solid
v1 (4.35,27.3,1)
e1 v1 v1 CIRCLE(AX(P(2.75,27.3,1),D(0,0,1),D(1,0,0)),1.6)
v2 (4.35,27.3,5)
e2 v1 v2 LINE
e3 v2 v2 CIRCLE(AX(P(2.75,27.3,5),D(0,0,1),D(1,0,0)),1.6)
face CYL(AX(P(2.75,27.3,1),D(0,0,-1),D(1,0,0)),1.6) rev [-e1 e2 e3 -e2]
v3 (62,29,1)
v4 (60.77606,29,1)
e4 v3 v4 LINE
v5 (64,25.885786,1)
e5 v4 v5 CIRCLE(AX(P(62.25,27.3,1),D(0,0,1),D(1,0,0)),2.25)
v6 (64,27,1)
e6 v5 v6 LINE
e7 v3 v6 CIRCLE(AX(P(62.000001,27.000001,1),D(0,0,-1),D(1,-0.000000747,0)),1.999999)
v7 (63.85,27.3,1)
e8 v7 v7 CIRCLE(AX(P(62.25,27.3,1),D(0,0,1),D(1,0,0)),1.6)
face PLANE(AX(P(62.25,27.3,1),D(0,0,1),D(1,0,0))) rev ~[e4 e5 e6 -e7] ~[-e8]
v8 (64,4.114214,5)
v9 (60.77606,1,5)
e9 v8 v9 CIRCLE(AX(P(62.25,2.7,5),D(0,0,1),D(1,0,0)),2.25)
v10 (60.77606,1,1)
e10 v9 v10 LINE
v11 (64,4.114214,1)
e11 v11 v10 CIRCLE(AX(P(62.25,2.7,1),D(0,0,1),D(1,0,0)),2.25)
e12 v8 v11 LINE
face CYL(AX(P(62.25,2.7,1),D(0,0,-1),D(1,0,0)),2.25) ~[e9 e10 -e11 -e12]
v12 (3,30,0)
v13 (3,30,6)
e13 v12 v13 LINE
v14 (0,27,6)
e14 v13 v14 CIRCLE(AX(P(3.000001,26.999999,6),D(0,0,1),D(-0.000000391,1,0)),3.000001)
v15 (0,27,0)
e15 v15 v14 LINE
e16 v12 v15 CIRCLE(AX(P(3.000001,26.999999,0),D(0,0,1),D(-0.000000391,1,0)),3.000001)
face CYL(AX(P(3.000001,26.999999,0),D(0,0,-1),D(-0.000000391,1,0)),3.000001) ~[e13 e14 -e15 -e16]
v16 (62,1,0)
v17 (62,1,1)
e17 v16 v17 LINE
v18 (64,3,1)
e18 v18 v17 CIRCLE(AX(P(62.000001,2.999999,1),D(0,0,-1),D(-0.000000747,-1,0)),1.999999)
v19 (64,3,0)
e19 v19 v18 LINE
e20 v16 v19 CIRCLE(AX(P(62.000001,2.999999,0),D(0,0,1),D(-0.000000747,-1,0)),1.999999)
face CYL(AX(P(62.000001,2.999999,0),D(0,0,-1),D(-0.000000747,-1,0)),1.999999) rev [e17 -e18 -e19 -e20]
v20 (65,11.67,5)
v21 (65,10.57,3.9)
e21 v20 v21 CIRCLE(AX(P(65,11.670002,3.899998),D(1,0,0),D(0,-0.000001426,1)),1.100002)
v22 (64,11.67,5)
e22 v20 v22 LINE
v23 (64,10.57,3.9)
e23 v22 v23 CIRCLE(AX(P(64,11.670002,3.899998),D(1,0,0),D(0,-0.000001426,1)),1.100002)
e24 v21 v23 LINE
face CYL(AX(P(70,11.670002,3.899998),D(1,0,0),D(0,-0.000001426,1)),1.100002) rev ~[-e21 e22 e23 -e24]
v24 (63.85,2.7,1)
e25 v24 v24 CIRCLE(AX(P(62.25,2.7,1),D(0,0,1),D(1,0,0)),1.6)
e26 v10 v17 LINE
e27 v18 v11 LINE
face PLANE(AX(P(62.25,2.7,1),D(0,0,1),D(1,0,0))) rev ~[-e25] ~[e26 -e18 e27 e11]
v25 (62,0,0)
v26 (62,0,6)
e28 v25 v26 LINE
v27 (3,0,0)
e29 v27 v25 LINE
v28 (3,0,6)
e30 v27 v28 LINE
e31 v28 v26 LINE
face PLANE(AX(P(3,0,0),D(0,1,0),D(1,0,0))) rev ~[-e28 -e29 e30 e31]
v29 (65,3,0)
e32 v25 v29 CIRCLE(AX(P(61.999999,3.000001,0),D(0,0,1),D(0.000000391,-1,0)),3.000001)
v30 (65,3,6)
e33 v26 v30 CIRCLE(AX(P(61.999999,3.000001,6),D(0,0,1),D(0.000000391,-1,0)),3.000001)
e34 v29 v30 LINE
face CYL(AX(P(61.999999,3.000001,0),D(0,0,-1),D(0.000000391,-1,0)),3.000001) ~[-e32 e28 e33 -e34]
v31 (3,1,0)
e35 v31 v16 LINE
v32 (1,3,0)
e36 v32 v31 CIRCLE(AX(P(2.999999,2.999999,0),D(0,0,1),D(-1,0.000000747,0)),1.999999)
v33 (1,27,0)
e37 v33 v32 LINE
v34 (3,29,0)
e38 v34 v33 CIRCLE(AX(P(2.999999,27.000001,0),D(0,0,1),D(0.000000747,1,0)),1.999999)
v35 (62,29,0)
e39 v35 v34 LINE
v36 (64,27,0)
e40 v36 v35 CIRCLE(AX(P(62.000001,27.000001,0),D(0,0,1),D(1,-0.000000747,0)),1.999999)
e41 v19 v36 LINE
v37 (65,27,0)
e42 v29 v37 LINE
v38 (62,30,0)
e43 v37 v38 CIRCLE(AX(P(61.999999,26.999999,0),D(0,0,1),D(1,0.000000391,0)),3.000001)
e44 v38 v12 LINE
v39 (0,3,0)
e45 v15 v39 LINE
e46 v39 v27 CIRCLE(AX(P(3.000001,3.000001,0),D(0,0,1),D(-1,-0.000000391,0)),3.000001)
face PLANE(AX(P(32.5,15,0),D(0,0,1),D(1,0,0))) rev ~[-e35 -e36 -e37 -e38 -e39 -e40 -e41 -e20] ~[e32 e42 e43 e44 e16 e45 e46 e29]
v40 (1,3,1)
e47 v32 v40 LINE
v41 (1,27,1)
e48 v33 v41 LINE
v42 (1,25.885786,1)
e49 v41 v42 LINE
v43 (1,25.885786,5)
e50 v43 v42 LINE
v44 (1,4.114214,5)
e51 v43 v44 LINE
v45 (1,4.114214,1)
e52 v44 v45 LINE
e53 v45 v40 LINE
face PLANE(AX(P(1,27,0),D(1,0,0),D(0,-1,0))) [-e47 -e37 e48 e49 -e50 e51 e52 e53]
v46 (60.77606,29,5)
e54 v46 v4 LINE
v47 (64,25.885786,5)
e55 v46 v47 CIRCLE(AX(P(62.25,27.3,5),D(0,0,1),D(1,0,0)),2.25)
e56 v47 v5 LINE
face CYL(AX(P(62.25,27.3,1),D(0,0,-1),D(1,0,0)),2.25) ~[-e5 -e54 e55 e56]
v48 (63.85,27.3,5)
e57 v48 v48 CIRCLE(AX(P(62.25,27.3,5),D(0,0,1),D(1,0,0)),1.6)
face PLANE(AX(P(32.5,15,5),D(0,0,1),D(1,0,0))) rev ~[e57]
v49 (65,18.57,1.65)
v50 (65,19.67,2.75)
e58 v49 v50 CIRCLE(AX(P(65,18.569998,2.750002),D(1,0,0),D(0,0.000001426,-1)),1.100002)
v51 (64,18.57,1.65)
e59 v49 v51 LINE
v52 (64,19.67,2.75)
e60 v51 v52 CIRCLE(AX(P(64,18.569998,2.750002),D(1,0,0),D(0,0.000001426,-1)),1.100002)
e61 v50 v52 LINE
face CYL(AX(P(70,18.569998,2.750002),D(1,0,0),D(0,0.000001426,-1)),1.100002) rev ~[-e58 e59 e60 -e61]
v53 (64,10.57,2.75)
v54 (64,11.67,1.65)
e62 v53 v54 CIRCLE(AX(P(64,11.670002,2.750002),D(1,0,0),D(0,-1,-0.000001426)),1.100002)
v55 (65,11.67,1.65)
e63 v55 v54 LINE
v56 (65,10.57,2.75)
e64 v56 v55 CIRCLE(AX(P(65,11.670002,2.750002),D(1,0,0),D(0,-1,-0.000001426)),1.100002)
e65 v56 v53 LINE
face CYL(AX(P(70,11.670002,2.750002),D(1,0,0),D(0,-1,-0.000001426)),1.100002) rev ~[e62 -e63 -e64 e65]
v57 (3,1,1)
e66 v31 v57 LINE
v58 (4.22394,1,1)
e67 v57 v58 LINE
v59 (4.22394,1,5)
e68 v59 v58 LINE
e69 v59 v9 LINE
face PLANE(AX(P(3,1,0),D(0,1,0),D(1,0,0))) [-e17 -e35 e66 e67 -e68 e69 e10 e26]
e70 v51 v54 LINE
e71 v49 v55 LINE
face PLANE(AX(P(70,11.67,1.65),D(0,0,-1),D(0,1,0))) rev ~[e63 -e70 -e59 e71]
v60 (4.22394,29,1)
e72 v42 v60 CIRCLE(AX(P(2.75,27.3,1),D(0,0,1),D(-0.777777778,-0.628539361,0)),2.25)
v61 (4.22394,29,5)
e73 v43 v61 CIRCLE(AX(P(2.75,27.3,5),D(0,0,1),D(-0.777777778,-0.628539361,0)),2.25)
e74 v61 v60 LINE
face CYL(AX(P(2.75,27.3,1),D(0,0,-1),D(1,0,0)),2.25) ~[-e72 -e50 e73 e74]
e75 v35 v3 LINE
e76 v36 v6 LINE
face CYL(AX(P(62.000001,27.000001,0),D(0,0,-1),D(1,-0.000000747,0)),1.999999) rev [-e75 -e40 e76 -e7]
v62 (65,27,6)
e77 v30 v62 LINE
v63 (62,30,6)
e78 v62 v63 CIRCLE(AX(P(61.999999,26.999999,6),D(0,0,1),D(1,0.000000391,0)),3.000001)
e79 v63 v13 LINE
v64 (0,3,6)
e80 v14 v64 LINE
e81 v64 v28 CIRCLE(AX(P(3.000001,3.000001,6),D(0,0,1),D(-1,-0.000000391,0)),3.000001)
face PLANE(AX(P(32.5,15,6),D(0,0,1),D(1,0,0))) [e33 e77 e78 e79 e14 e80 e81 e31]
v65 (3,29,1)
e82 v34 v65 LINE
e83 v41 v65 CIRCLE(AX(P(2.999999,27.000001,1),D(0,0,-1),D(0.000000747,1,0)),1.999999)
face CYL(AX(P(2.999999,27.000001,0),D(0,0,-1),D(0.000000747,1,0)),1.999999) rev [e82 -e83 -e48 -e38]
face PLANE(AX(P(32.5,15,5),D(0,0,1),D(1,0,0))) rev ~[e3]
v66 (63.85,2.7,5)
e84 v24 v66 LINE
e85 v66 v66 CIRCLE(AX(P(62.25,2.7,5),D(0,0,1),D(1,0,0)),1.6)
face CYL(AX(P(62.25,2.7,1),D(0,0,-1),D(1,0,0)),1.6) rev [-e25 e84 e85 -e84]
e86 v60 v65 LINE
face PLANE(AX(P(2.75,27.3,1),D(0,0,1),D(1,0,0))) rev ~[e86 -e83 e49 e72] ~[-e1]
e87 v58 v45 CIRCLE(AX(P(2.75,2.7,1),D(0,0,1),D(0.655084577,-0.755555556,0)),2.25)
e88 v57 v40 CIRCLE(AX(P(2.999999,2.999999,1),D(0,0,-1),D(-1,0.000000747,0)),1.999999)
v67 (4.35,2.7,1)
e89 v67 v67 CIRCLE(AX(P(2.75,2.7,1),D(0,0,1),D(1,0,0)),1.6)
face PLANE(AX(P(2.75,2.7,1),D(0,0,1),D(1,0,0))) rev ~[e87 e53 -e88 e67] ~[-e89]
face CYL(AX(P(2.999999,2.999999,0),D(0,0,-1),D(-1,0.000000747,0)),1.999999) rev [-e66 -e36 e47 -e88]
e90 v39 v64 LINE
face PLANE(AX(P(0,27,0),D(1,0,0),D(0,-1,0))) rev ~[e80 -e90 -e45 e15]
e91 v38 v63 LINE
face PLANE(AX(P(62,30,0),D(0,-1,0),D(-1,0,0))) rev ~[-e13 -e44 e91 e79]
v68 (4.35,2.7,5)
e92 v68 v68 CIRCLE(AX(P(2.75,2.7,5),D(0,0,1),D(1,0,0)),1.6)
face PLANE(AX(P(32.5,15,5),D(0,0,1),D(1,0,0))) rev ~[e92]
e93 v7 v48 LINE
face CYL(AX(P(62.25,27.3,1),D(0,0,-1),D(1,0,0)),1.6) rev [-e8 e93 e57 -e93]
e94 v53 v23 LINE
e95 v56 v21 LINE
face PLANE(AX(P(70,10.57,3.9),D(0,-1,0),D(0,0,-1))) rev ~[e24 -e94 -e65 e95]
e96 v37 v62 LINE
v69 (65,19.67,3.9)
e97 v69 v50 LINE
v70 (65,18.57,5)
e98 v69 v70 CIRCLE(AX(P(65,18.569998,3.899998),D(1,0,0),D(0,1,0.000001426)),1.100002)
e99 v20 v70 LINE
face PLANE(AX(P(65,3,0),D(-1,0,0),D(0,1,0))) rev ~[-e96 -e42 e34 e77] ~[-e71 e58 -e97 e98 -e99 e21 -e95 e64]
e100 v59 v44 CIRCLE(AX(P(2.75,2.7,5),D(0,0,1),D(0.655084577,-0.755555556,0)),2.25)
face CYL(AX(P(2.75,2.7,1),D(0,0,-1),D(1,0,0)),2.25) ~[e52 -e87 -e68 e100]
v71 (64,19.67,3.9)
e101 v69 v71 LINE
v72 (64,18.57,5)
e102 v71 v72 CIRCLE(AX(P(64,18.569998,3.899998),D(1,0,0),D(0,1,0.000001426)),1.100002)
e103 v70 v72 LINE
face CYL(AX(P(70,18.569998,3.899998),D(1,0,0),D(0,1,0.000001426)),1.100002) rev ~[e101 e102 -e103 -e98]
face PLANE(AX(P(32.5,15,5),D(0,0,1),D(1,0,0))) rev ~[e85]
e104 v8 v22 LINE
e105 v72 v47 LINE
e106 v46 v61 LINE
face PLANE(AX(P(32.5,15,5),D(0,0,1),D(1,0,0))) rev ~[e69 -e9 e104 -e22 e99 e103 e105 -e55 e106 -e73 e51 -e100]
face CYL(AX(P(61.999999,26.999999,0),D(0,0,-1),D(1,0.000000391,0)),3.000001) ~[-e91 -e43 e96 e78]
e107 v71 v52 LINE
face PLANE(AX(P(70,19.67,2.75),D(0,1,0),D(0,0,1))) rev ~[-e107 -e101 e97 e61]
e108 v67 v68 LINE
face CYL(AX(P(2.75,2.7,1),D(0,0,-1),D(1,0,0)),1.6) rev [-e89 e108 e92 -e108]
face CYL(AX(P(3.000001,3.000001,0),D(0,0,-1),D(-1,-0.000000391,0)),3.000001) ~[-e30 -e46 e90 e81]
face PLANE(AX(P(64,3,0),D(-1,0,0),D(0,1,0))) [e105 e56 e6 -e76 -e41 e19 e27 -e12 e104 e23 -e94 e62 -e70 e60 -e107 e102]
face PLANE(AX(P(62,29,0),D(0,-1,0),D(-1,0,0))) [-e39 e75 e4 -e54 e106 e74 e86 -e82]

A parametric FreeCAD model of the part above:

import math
import FreeCAD as App
import Part
import Sketcher
from FreeCAD import Vector

doc = App.newDocument("Part")
body = doc.addObject("PartDesign::Body", "Body")

# Sketch on XY plane
sketch1 = doc.addObject("Sketcher::SketchObject", "Sketch")
body.addObject(sketch1)
sketch1.AttachmentSupport = (doc.XY_Plane, [""])
sketch1.MapMode = "FlatFace"
sketch1.addGeometry([
    Part.LineSegment(Vector(3, 0, 0), Vector(62, 0, 0)),  # 0
    Part.ArcOfCircle(Part.Circle(Vector(62, 3, 0), Vector(0, 0, 1), 3), math.radians(-90), math.radians(0)),  # 1
    Part.LineSegment(Vector(65, 3, 0), Vector(65, 27, 0)),  # 2
    Part.ArcOfCircle(Part.Circle(Vector(62, 27, 0), Vector(0, 0, 1), 3), math.radians(0), math.radians(90)),  # 3
    Part.LineSegment(Vector(62, 30, 0), Vector(3, 30, 0)),  # 4
    Part.ArcOfCircle(Part.Circle(Vector(3, 27, 0), Vector(0, 0, 1), 3), math.radians(90), math.radians(180)),  # 5
    Part.LineSegment(Vector(0, 27, 0), Vector(0, 3, 0)),  # 6
    Part.ArcOfCircle(Part.Circle(Vector(3, 3, 0), Vector(0, 0, 1), 3), math.radians(-180), math.radians(-90)),  # 7
], False)
sketch1.addConstraint([
    Sketcher.Constraint("Tangent", 0, 2, 1, 1),
    Sketcher.Constraint("Tangent", 1, 2, 2, 1),
    Sketcher.Constraint("Tangent", 2, 2, 3, 1),
    Sketcher.Constraint("Tangent", 3, 2, 4, 1),
    Sketcher.Constraint("Tangent", 4, 2, 5, 1),
    Sketcher.Constraint("Tangent", 5, 2, 6, 1),
    Sketcher.Constraint("Tangent", 6, 2, 7, 1),
    Sketcher.Constraint("Tangent", 7, 2, 0, 1),
    Sketcher.Constraint("Horizontal", 0),
    Sketcher.Constraint("Vertical", 2),
    Sketcher.Constraint("Horizontal", 4),
    Sketcher.Constraint("Vertical", 6),
    Sketcher.Constraint("Equal", 1, 3),
    Sketcher.Constraint("Equal", 3, 5),
    Sketcher.Constraint("Equal", 5, 7),
    Sketcher.Constraint("PointOnObject", 0, 2, -1),
    Sketcher.Constraint("PointOnObject", 5, 2, -2),
    Sketcher.Constraint("Radius", 1, 3.000001),
    Sketcher.Constraint("DistanceX", 0, 1, 0, 2, 59.0),
    Sketcher.Constraint("DistanceY", 2, 1, 2, 2, 24.0),
])
pad1 = doc.addObject("PartDesign::Pad", "Pad")
body.addObject(pad1)
pad1.Profile = sketch1
pad1.Length = 6

# Sketch on XY plane
sketch2 = doc.addObject("Sketcher::SketchObject", "Sketch001")
body.addObject(sketch2)
sketch2.AttachmentSupport = (doc.XY_Plane, [""])
sketch2.MapMode = "FlatFace"
sketch2.addGeometry([
    Part.LineSegment(Vector(1, 27, 0), Vector(1, 3, 0)),  # 0
    Part.ArcOfCircle(Part.Circle(Vector(3, 3, 0), Vector(0, 0, 1), 2), math.radians(180), math.radians(270)),  # 1
    Part.LineSegment(Vector(3, 1, 0), Vector(62, 1, 0)),  # 2
    Part.ArcOfCircle(Part.Circle(Vector(62, 3, 0), Vector(0, 0, 1), 2), math.radians(-90), math.radians(0)),  # 3
    Part.LineSegment(Vector(64, 3, 0), Vector(64, 27, 0)),  # 4
    Part.ArcOfCircle(Part.Circle(Vector(62, 27, 0), Vector(0, 0, 1), 2), math.radians(0), math.radians(90)),  # 5
    Part.LineSegment(Vector(62, 29, 0), Vector(3, 29, 0)),  # 6
    Part.ArcOfCircle(Part.Circle(Vector(3, 27, 0), Vector(0, 0, 1), 2), math.radians(90), math.radians(180)),  # 7
], False)
sketch2.addConstraint([
    Sketcher.Constraint("Tangent", 0, 2, 1, 1),
    Sketcher.Constraint("Tangent", 1, 2, 2, 1),
    Sketcher.Constraint("Tangent", 2, 2, 3, 1),
    Sketcher.Constraint("Tangent", 3, 2, 4, 1),
    Sketcher.Constraint("Tangent", 4, 2, 5, 1),
    Sketcher.Constraint("Tangent", 5, 2, 6, 1),
    Sketcher.Constraint("Tangent", 6, 2, 7, 1),
    Sketcher.Constraint("Tangent", 7, 2, 0, 1),
    Sketcher.Constraint("Vertical", 0),
    Sketcher.Constraint("Horizontal", 2),
    Sketcher.Constraint("Vertical", 4),
    Sketcher.Constraint("Horizontal", 6),
    Sketcher.Constraint("Equal", 1, 3),
    Sketcher.Constraint("Equal", 3, 5),
    Sketcher.Constraint("Equal", 5, 7),
    Sketcher.Constraint("Radius", 1, 1.999999),
    Sketcher.Constraint("DistanceX", 2, 1, 2, 2, 59.0),
    Sketcher.Constraint("DistanceY", 0, 2, 0, 1, 24.0),
    Sketcher.Constraint("DistanceX", -1, 1, 1, 3, 2.999999),
    Sketcher.Constraint("DistanceY", -1, 1, 1, 3, 2.999999),
])
pocket1 = doc.addObject("PartDesign::Pocket", "Pocket")
body.addObject(pocket1)
pocket1.Profile = sketch2
pocket1.Length = 5
pocket1.Reversed = True

# Sketch on XY plane
sketch3 = doc.addObject("Sketcher::SketchObject", "Sketch002")
body.addObject(sketch3)
sketch3.AttachmentSupport = (doc.XY_Plane, [""])
sketch3.MapMode = "FlatFace"
sketch3.AttachmentOffset = App.Placement(Vector(0, 0, 1), App.Rotation())
sketch3.addGeometry([
    Part.Circle(Vector(62.2, 27.3, 0), Vector(0, 0, 1), 2.2),  # 0
    Part.Circle(Vector(62.2, 27.3, 0), Vector(0, 0, 1), 1.6),  # 1
    Part.Circle(Vector(2.8, 27.3, 0), Vector(0, 0, 1), 2.2),  # 2
    Part.Circle(Vector(2.8, 27.3, 0), Vector(0, 0, 1), 1.6),  # 3
    Part.Circle(Vector(2.8, 2.7, 0), Vector(0, 0, 1), 2.2),  # 4
    Part.Circle(Vector(2.8, 2.7, 0), Vector(0, 0, 1), 1.6),  # 5
    Part.Circle(Vector(62.2, 2.7, 0), Vector(0, 0, 1), 2.2),  # 6
    Part.Circle(Vector(62.2, 2.7, 0), Vector(0, 0, 1), 1.6),  # 7
], False)
sketch3.addConstraint([
    Sketcher.Constraint("Coincident", 1, 3, 0, 3),
    Sketcher.Constraint("Coincident", 3, 3, 2, 3),
    Sketcher.Constraint("Coincident", 5, 3, 4, 3),
    Sketcher.Constraint("Coincident", 7, 3, 6, 3),
    Sketcher.Constraint("Equal", 0, 2),
    Sketcher.Constraint("Equal", 1, 3),
    Sketcher.Constraint("Equal", 2, 4),
    Sketcher.Constraint("Equal", 3, 5),
    Sketcher.Constraint("Equal", 4, 6),
    Sketcher.Constraint("Equal", 5, 7),
    Sketcher.Constraint("Horizontal", 1, 3, 2, 3),
    Sketcher.Constraint("Horizontal", 5, 3, 6, 3),
    Sketcher.Constraint("Vertical", 3, 3, 4, 3),
    Sketcher.Constraint("Vertical", 1, 3, 6, 3),
    Sketcher.Constraint("Diameter", 0, 4.5),
    Sketcher.Constraint("Diameter", 1, 3.2),
    Sketcher.Constraint("DistanceY", -1, 1, 0, 3, 27.3),
    Sketcher.Constraint("DistanceY", -1, 1, 4, 3, 2.7),
    Sketcher.Constraint("DistanceX", 2, 3, 0, 3, 59.5),
    Sketcher.Constraint("DistanceX", -1, 1, 0, 3, 62.25),
])
pad2 = doc.addObject("PartDesign::Pad", "Pad001")
body.addObject(pad2)
pad2.Profile = sketch3
pad2.Length = 4

# Sketch on YZ plane
sketch4 = doc.addObject("Sketcher::SketchObject", "Sketch003")
body.addObject(sketch4)
sketch4.AttachmentSupport = (doc.YZ_Plane, [""])
sketch4.MapMode = "FlatFace"
sketch4.AttachmentOffset = App.Placement(Vector(0, 0, 70), App.Rotation())
sketch4.addGeometry([
    Part.LineSegment(Vector(10.6, 3.9, 0), Vector(10.6, 2.8, 0)),  # 0
    Part.ArcOfCircle(Part.Circle(Vector(11.7, 2.8, 0), Vector(0, 0, 1), 1.1), math.radians(-180), math.radians(-90)),  # 1
    Part.LineSegment(Vector(11.7, 1.6, 0), Vector(18.6, 1.6, 0)),  # 2
    Part.ArcOfCircle(Part.Circle(Vector(18.6, 2.8, 0), Vector(0, 0, 1), 1.1), math.radians(-90), math.radians(0)),  # 3
    Part.LineSegment(Vector(19.7, 2.8, 0), Vector(19.7, 3.9, 0)),  # 4
    Part.ArcOfCircle(Part.Circle(Vector(18.6, 3.9, 0), Vector(0, 0, 1), 1.1), math.radians(0), math.radians(90)),  # 5
    Part.LineSegment(Vector(18.6, 5, 0), Vector(11.7, 5, 0)),  # 6
    Part.ArcOfCircle(Part.Circle(Vector(11.7, 3.9, 0), Vector(0, 0, 1), 1.1), math.radians(90), math.radians(180)),  # 7
], False)
sketch4.addConstraint([
    Sketcher.Constraint("Tangent", 0, 2, 1, 1),
    Sketcher.Constraint("Tangent", 1, 2, 2, 1),
    Sketcher.Constraint("Tangent", 2, 2, 3, 1),
    Sketcher.Constraint("Tangent", 3, 2, 4, 1),
    Sketcher.Constraint("Tangent", 4, 2, 5, 1),
    Sketcher.Constraint("Tangent", 5, 2, 6, 1),
    Sketcher.Constraint("Tangent", 6, 2, 7, 1),
    Sketcher.Constraint("Tangent", 7, 2, 0, 1),
    Sketcher.Constraint("Vertical", 0),
    Sketcher.Constraint("Horizontal", 2),
    Sketcher.Constraint("Vertical", 4),
    Sketcher.Constraint("Horizontal", 6),
    Sketcher.Constraint("Equal", 1, 3),
    Sketcher.Constraint("Equal", 3, 5),
    Sketcher.Constraint("Equal", 5, 7),
    Sketcher.Constraint("Radius", 1, 1.100002),
    Sketcher.Constraint("DistanceX", 2, 1, 2, 2, 6.9),
    Sketcher.Constraint("DistanceY", -1, 1, 5, 2, 5.0),
    Sketcher.Constraint("DistanceY", 0, 2, 0, 1, 1.15),
    Sketcher.Constraint("DistanceX", -1, 1, 1, 3, 11.670002),
])
pocket2 = doc.addObject("PartDesign::Pocket", "Pocket001")
body.addObject(pocket2)
pocket2.Profile = sketch4
pocket2.Length = 10

doc.recompute()
